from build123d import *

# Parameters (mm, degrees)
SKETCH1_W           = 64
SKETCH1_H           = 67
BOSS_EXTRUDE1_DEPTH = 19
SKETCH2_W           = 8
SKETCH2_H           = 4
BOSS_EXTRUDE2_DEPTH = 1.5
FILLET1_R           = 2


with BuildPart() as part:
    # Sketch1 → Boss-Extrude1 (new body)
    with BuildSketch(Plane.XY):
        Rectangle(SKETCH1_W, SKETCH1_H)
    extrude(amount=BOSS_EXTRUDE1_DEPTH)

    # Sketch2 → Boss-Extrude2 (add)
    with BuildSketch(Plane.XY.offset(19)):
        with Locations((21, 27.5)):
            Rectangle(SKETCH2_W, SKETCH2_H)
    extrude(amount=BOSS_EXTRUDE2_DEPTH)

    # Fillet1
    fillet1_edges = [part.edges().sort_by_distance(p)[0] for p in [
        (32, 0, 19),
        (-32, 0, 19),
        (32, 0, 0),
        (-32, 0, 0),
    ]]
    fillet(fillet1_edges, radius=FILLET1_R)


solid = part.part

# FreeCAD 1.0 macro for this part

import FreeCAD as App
import Part
import Sketcher
Q = App.Units.Quantity


def edges_at(feature, points):
    """Names of the edges that pass closest to the given points."""
    edges = feature.Shape.Edges
    near = lambda p: min(range(len(edges)), key=lambda i: edges[i].distToShape(Part.Vertex(*p))[0])
    return sorted({f"Edge{near(p) + 1}" for p in points})


def add_polygon(sketch, points):
    """Adds a closed chain of lines whose ends are joined by coincident constraints."""
    first, n = sketch.GeometryCount, len(points)
    for a, b in zip(points, points[1:] + points[:1]):
        sketch.addGeometry(Part.LineSegment(App.Vector(*a, 0), App.Vector(*b, 0)), False)
    for i in range(n):
        sketch.addConstraint(Sketcher.Constraint("Coincident", first + i, 2, first + (i + 1) % n, 1))

doc = App.newDocument("Part")
body = doc.addObject("PartDesign::Body", "Body")

# Sketch on XY plane
sketch1 = body.newObject("Sketcher::SketchObject", "Sketch")
sketch1.AttachmentSupport = (doc.getObject("XY_Plane"), [""])
sketch1.MapMode = "FlatFace"
add_polygon(sketch1, [(-32, 34), (-32, -34), (32, -34), (32, 34)])  # lines 0-3
sketch1.addConstraint([
    Sketcher.Constraint("Vertical", 0),
    Sketcher.Constraint("Horizontal", 1),
    Sketcher.Constraint("Vertical", 2),
    Sketcher.Constraint("Horizontal", 3),
    Sketcher.Constraint("Symmetric", 0, 2, 2, 2, -1, 1),
    Sketcher.Constraint("DistanceX", 1, 1, 1, 2, Q("64 mm")),
    Sketcher.Constraint("DistanceY", 0, 2, 0, 1, Q("67 mm")),
])
pad1 = body.newObject("PartDesign::Pad", "Pad")
pad1.Profile = sketch1
pad1.Length = 19

# Sketch on XY plane
sketch2 = body.newObject("Sketcher::SketchObject", "Sketch001")
sketch2.AttachmentSupport = (doc.getObject("XY_Plane"), [""])
sketch2.MapMode = "FlatFace"
sketch2.AttachmentOffset = App.Placement(App.Vector(0, 0, 19), App.Rotation())
add_polygon(sketch2, [(17, 29.5), (17, 25.5), (25, 25.5), (25, 29.5)])  # lines 0-3
sketch2.addConstraint([
    Sketcher.Constraint("Vertical", 0),
    Sketcher.Constraint("Horizontal", 1),
    Sketcher.Constraint("Vertical", 2),
    Sketcher.Constraint("Horizontal", 3),
    Sketcher.Constraint("DistanceX", 1, 1, 1, 2, Q("8 mm")),
    Sketcher.Constraint("DistanceY", 0, 2, 0, 1, Q("4 mm")),
    Sketcher.Constraint("DistanceX", -1, 1, 0, 2, Q("17 mm")),
    Sketcher.Constraint("DistanceY", -1, 1, 0, 2, Q("25.5 mm")),
])
pad2 = body.newObject("PartDesign::Pad", "Pad001")
pad2.Profile = sketch2
pad2.Length = 1.5
doc.recompute()

fillet = body.newObject("PartDesign::Fillet", "Fillet")
fillet.Base = (pad2, edges_at(pad2, [
    (32, 0, 19),
    (-32, 0, 19),
    (32, 0, 0),
    (-32, 0, 0),
]))
fillet.Radius = 2

doc.recompute()
